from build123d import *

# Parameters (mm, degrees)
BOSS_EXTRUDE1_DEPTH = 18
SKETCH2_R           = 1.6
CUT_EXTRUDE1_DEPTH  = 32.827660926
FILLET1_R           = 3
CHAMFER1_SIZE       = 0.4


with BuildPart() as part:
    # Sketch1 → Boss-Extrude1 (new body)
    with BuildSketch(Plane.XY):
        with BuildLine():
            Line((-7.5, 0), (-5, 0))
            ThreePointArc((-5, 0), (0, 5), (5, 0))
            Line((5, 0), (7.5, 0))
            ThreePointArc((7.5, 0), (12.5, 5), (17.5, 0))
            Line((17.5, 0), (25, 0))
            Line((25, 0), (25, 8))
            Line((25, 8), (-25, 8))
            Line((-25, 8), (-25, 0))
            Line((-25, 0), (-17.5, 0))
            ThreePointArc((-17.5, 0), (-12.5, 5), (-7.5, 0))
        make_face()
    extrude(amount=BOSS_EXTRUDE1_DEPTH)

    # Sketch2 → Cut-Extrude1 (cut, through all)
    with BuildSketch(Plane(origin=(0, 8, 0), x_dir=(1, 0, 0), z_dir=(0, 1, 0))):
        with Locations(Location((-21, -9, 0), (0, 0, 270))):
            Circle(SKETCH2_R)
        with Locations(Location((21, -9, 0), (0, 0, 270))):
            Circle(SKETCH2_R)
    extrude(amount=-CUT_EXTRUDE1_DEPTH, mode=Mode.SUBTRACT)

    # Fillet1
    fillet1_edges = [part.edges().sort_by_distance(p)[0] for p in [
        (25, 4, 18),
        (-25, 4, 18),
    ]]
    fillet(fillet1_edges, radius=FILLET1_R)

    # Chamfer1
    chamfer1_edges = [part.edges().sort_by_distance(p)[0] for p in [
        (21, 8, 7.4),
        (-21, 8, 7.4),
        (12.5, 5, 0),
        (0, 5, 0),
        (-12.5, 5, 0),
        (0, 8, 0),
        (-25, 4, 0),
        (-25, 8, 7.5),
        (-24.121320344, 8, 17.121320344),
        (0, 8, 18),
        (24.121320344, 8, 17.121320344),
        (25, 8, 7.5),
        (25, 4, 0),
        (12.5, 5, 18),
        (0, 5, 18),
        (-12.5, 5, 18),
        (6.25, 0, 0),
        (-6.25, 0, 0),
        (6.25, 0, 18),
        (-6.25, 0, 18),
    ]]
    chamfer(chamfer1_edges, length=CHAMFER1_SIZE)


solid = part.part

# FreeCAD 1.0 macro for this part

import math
import FreeCAD as App
import Part
import Sketcher
from FreeCAD import Vector
Q = App.Units.Quantity


def edges_at(feature, points):
    """Names of the edges that pass closest to the given points."""
    edges = feature.Shape.Edges
    near = lambda p: min(range(len(edges)), key=lambda i: edges[i].distToShape(Part.Vertex(*p))[0])
    return sorted({f"Edge{near(p) + 1}" for p in points})

doc = App.newDocument("Part")
body = doc.addObject("PartDesign::Body", "Body")

# Sketch on XY plane
sketch1 = body.newObject("Sketcher::SketchObject", "Sketch")
sketch1.AttachmentSupport = (doc.getObject("XY_Plane"), [""])
sketch1.MapMode = "FlatFace"
sketch1.addGeometry(Part.LineSegment(Vector(-7.5, 0, 0), Vector(-5, 0, 0)), False)
sketch1.addGeometry(Part.ArcOfCircle(Part.Circle(Vector(0, 0, 0), Vector(0, 0, 1), 5), math.radians(0), math.radians(180)), False)
sketch1.addGeometry(Part.LineSegment(Vector(5, 0, 0), Vector(7.5, 0, 0)), False)
sketch1.addGeometry(Part.ArcOfCircle(Part.Circle(Vector(12.5, 0, 0), Vector(0, 0, 1), 5), math.radians(0), math.radians(180)), False)
sketch1.addGeometry(Part.LineSegment(Vector(17.5, 0, 0), Vector(25, 0, 0)), False)
sketch1.addGeometry(Part.LineSegment(Vector(25, 0, 0), Vector(25, 8, 0)), False)
sketch1.addGeometry(Part.LineSegment(Vector(25, 8, 0), Vector(-25, 8, 0)), False)
sketch1.addGeometry(Part.LineSegment(Vector(-25, 8, 0), Vector(-25, 0, 0)), False)
sketch1.addGeometry(Part.LineSegment(Vector(-25, 0, 0), Vector(-17.5, 0, 0)), False)
sketch1.addGeometry(Part.ArcOfCircle(Part.Circle(Vector(-12.5, 0, 0), Vector(0, 0, 1), 5), math.radians(0), math.radians(180)), False)
sketch1.addConstraint(Sketcher.Constraint("Coincident", 0, 2, 1, 2))
sketch1.addConstraint(Sketcher.Constraint("Coincident", 1, 1, 2, 1))
sketch1.addConstraint(Sketcher.Constraint("Coincident", 2, 2, 3, 2))
sketch1.addConstraint(Sketcher.Constraint("Coincident", 3, 1, 4, 1))
sketch1.addConstraint(Sketcher.Constraint("Coincident", 4, 2, 5, 1))
sketch1.addConstraint(Sketcher.Constraint("Coincident", 5, 2, 6, 1))
sketch1.addConstraint(Sketcher.Constraint("Coincident", 6, 2, 7, 1))
sketch1.addConstraint(Sketcher.Constraint("Coincident", 7, 2, 8, 1))
sketch1.addConstraint(Sketcher.Constraint("Coincident", 8, 2, 9, 2))
sketch1.addConstraint(Sketcher.Constraint("Coincident", 9, 1, 0, 1))
sketch1.addConstraint(Sketcher.Constraint("Horizontal", 0))
sketch1.addConstraint(Sketcher.Constraint("Horizontal", 2))
sketch1.addConstraint(Sketcher.Constraint("Horizontal", 4))
sketch1.addConstraint(Sketcher.Constraint("Vertical", 5))
sketch1.addConstraint(Sketcher.Constraint("Horizontal", 6))
sketch1.addConstraint(Sketcher.Constraint("Vertical", 7))
sketch1.addConstraint(Sketcher.Constraint("Horizontal", 8))
sketch1.addConstraint(Sketcher.Constraint("Coincident", 1, 3, -1, 1))
sketch1.addConstraint(Sketcher.Constraint("Equal", 1, 3))
sketch1.addConstraint(Sketcher.Constraint("Equal", 3, 9))
sketch1.addConstraint(Sketcher.Constraint("Symmetric", 3, 3, 9, 3, -1, 1))
sketch1.addConstraint(Sketcher.Constraint("Symmetric", 4, 2, 7, 2, -1, 1))
sketch1.addConstraint(Sketcher.Constraint("PointOnObject", 3, 3, -1))
sketch1.addConstraint(Sketcher.Constraint("PointOnObject", 0, 2, -1))
sketch1.addConstraint(Sketcher.Constraint("PointOnObject", 1, 1, -1))
sketch1.addConstraint(Sketcher.Constraint("PointOnObject", 3, 1, -1))
sketch1.addConstraint(Sketcher.Constraint("Radius", 1, Q("5 mm")))
sketch1.addConstraint(Sketcher.Constraint("DistanceX", 6, 2, 6, 1, Q("50 mm")))
sketch1.addConstraint(Sketcher.Constraint("DistanceY", 5, 1, 5, 2, Q("8 mm")))
sketch1.addConstraint(Sketcher.Constraint("DistanceX", 0, 1, 0, 2, Q("2.5 mm")))
pad1 = body.newObject("PartDesign::Pad", "Pad")
pad1.Profile = sketch1
pad1.Length = 18

# Sketch on XZ plane
sketch2 = body.newObject("Sketcher::SketchObject", "Sketch001")
sketch2.AttachmentSupport = (doc.getObject("XZ_Plane"), [""])
sketch2.MapMode = "FlatFace"
sketch2.AttachmentOffset = App.Placement(Vector(0, 0, -8), App.Rotation())
sketch2.addGeometry(Part.Circle(Vector(-21, 9, 0), Vector(0, 0, 1), 1.6), False)
sketch2.addGeometry(Part.Circle(Vector(21, 9, 0), Vector(0, 0, 1), 1.6), False)
sketch2.addConstraint(Sketcher.Constraint("Equal", 0, 1))
sketch2.addConstraint(Sketcher.Constraint("Symmetric", 0, 3, 1, 3, -2))
sketch2.addConstraint(Sketcher.Constraint("Diameter", 0, Q("3.2 mm")))
sketch2.addConstraint(Sketcher.Constraint("DistanceX", 0, 3, -1, 1, Q("21 mm")))
sketch2.addConstraint(Sketcher.Constraint("DistanceY", -1, 1, 0, 3, Q("9 mm")))
pocket1 = body.newObject("PartDesign::Pocket", "Pocket")
pocket1.Profile = sketch2
pocket1.Type = "ThroughAll"
pocket1.Reversed = True
doc.recompute()

fillet = body.newObject("PartDesign::Fillet", "Fillet")
fillet.Base = (pocket1, edges_at(pocket1, [(25, 4, 18), (-25, 4, 18)]))
fillet.Radius = 3
doc.recompute()

chamfer = body.newObject("PartDesign::Chamfer", "Chamfer")
chamfer.Base = (fillet, edges_at(fillet, [
    (21, 8, 7.4),
    (-21, 8, 7.4),
    (12.5, 5, 0),
    (0, 5, 0),
    (-12.5, 5, 0),
    (0, 8, 0),
    (-25, 4, 0),
    (-25, 8, 7.5),
    (-24.121, 8, 17.121),
    (0, 8, 18),
    (24.121, 8, 17.121),
    (25, 8, 7.5),
    (25, 4, 0),
    (12.5, 5, 18),
    (0, 5, 18),
    (-12.5, 5, 18),
    (6.25, 0, 0),
    (-6.25, 0, 0),
    (6.25, 0, 18),
    (-6.25, 0, 18),
]))
chamfer.Size = 0.4

doc.recompute()
